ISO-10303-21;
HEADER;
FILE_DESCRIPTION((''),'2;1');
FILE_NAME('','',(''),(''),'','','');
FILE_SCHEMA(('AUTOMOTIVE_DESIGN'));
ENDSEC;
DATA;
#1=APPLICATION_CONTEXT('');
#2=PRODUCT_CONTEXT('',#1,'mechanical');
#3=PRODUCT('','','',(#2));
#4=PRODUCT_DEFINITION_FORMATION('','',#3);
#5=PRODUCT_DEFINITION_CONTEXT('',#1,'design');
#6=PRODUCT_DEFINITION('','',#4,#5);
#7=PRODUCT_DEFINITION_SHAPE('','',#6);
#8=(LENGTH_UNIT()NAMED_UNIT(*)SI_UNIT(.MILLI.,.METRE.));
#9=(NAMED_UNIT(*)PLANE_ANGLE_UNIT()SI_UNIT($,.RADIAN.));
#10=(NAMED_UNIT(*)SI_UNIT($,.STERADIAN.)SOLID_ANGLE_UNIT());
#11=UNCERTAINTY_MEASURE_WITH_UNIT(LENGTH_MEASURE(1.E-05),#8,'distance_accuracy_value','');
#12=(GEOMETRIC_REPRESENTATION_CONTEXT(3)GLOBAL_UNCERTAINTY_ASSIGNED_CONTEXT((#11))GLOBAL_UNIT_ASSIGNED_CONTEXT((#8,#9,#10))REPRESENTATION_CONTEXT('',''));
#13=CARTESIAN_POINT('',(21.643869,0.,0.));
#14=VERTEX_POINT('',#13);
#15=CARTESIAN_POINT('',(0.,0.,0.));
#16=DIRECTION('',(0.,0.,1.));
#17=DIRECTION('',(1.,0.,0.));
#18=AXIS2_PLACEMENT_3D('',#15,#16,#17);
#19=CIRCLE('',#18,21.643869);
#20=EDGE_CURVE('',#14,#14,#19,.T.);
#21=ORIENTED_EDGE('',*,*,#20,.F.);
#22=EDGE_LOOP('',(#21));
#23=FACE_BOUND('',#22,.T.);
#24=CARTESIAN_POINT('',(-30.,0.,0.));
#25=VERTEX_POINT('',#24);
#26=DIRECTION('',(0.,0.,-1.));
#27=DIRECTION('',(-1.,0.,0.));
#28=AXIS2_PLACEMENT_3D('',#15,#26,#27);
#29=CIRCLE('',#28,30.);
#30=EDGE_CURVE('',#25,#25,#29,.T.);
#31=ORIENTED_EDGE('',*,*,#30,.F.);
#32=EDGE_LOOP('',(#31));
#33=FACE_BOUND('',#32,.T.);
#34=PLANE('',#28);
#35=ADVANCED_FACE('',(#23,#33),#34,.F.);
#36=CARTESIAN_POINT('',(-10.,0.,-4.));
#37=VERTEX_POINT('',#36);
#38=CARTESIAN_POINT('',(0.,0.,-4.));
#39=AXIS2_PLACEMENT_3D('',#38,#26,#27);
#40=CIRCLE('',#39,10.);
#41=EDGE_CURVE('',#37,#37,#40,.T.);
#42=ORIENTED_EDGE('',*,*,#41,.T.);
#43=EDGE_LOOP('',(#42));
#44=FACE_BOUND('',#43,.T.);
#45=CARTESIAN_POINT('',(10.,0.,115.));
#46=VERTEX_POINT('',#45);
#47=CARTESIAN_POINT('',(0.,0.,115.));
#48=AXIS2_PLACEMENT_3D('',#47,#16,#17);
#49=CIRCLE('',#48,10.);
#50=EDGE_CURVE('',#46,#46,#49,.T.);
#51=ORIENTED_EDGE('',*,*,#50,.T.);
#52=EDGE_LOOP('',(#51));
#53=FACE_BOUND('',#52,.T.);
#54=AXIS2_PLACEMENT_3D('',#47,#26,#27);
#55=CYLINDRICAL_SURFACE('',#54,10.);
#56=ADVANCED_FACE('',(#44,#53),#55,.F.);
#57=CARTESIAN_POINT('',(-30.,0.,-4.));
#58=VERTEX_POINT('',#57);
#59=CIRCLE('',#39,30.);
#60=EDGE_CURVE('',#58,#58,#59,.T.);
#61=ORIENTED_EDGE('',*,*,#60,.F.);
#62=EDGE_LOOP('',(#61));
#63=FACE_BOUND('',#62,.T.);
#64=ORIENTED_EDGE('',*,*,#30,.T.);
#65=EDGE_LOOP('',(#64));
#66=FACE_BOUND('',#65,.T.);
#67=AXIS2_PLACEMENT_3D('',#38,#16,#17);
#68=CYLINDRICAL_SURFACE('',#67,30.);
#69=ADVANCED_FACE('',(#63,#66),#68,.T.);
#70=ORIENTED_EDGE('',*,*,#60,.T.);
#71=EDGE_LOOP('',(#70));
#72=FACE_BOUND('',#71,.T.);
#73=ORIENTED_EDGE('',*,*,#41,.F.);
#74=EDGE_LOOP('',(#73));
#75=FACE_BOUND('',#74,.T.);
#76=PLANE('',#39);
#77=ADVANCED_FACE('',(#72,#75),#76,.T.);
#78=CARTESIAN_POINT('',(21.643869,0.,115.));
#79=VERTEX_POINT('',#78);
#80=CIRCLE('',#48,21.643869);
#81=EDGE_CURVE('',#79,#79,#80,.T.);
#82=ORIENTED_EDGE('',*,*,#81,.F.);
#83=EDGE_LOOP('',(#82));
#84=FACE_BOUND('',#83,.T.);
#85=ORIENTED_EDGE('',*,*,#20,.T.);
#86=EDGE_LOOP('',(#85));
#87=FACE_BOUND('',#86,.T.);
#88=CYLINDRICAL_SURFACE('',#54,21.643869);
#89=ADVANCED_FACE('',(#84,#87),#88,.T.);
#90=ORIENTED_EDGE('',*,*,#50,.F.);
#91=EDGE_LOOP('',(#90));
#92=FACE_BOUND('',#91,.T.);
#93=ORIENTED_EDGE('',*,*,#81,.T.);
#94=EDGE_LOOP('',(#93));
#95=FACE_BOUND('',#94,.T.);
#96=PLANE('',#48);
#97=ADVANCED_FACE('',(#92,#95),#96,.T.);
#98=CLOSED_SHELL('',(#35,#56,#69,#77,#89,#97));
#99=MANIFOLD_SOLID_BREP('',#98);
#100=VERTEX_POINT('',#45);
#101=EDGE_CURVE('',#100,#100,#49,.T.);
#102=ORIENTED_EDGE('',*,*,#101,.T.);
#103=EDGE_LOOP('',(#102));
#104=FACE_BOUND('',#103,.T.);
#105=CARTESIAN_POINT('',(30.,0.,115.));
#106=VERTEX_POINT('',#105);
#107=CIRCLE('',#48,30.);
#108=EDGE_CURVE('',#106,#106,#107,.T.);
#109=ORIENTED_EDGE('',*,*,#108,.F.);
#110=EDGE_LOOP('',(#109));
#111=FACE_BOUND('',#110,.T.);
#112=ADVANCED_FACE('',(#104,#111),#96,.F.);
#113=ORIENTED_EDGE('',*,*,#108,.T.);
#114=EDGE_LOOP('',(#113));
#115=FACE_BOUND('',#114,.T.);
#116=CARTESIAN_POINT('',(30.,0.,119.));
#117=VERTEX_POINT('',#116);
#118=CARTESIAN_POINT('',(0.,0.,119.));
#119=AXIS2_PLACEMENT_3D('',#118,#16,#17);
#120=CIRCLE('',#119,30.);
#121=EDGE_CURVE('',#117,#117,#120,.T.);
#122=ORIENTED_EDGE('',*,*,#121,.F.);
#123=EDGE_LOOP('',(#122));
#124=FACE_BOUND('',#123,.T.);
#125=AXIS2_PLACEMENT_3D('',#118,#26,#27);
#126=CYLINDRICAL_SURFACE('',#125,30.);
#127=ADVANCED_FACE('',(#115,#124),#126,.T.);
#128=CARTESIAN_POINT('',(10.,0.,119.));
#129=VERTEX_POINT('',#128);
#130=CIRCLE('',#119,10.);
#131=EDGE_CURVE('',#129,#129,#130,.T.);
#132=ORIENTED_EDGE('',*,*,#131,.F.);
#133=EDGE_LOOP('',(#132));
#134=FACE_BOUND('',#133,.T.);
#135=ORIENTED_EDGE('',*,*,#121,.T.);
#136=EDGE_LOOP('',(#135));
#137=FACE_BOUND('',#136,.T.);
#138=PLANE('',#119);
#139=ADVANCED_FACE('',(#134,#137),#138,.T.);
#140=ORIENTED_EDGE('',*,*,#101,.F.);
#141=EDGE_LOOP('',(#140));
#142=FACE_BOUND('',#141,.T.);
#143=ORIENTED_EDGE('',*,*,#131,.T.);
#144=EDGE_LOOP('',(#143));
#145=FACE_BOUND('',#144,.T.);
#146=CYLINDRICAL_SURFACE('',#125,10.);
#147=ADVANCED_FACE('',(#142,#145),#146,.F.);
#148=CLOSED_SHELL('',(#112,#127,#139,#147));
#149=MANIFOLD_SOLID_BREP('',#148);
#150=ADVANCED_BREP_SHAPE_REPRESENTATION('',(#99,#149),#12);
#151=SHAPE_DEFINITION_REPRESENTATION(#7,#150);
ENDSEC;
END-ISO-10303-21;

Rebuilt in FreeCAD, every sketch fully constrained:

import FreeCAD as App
import Part
import Sketcher

doc = App.newDocument("Part")
body = doc.addObject("PartDesign::Body", "Body")

# Sketch on XY plane
sketch1 = doc.addObject("Sketcher::SketchObject", "Sketch")
body.addObject(sketch1)
sketch1.AttachmentSupport = (doc.XY_Plane, [""])
sketch1.MapMode = "FlatFace"
sketch1.addGeometry([
    Part.Circle(App.Vector(0, 0, 0), App.Vector(0, 0, 1), 22),
    Part.Circle(App.Vector(0, 0, 0), App.Vector(0, 0, 1), 10),
], False)
sketch1.addConstraint([
    Sketcher.Constraint("Coincident", 0, 3, -1, 1),
    Sketcher.Constraint("Coincident", 1, 3, -1, 1),
    Sketcher.Constraint("Diameter", 1, 20.0),
    Sketcher.Constraint("Diameter", 0, 43.287739),
])
pad1 = doc.addObject("PartDesign::Pad", "Pad")
body.addObject(pad1)
pad1.Profile = sketch1
pad1.Length = 115

# Sketch on XY plane
sketch2 = doc.addObject("Sketcher::SketchObject", "Sketch001")
body.addObject(sketch2)
sketch2.AttachmentSupport = (doc.XY_Plane, [""])
sketch2.MapMode = "FlatFace"
sketch2.addGeometry([
    Part.Circle(App.Vector(0, 0, 0), App.Vector(0, 0, 1), 30),
    Part.Circle(App.Vector(0, 0, 0), App.Vector(0, 0, 1), 10),
], False)
sketch2.addConstraint([
    Sketcher.Constraint("Coincident", 0, 3, -1, 1),
    Sketcher.Constraint("Coincident", 1, 3, -1, 1),
    Sketcher.Constraint("Diameter", 0, 60.0),
    Sketcher.Constraint("Diameter", 1, 20.0),
])
pad2 = doc.addObject("PartDesign::Pad", "Pad001")
body.addObject(pad2)
pad2.Profile = sketch2
pad2.Length = 4
pad2.Reversed = True
body2 = doc.addObject("PartDesign::Body", "Body001")

# Sketch on XY plane
sketch3 = doc.addObject("Sketcher::SketchObject", "Sketch002")
body2.addObject(sketch3)
sketch3.AttachmentSupport = (doc.getObject("XY_Plane001"), [""])
sketch3.MapMode = "FlatFace"
sketch3.AttachmentOffset = App.Placement(App.Vector(0, 0, 115), App.Rotation())
sketch3.addGeometry([
    Part.Circle(App.Vector(0, 0, 0), App.Vector(0, 0, 1), 30),
    Part.Circle(App.Vector(0, 0, 0), App.Vector(0, 0, 1), 10),
], False)
sketch3.addConstraint([
    Sketcher.Constraint("Coincident", 0, 3, -1, 1),
    Sketcher.Constraint("Coincident", 1, 3, -1, 1),
    Sketcher.Constraint("Diameter", 0, 60.0),
    Sketcher.Constraint("Diameter", 1, 20.0),
])
pad3 = doc.addObject("PartDesign::Pad", "Pad002")
body2.addObject(pad3)
pad3.Profile = sketch3
pad3.Length = 4

doc.recompute()
